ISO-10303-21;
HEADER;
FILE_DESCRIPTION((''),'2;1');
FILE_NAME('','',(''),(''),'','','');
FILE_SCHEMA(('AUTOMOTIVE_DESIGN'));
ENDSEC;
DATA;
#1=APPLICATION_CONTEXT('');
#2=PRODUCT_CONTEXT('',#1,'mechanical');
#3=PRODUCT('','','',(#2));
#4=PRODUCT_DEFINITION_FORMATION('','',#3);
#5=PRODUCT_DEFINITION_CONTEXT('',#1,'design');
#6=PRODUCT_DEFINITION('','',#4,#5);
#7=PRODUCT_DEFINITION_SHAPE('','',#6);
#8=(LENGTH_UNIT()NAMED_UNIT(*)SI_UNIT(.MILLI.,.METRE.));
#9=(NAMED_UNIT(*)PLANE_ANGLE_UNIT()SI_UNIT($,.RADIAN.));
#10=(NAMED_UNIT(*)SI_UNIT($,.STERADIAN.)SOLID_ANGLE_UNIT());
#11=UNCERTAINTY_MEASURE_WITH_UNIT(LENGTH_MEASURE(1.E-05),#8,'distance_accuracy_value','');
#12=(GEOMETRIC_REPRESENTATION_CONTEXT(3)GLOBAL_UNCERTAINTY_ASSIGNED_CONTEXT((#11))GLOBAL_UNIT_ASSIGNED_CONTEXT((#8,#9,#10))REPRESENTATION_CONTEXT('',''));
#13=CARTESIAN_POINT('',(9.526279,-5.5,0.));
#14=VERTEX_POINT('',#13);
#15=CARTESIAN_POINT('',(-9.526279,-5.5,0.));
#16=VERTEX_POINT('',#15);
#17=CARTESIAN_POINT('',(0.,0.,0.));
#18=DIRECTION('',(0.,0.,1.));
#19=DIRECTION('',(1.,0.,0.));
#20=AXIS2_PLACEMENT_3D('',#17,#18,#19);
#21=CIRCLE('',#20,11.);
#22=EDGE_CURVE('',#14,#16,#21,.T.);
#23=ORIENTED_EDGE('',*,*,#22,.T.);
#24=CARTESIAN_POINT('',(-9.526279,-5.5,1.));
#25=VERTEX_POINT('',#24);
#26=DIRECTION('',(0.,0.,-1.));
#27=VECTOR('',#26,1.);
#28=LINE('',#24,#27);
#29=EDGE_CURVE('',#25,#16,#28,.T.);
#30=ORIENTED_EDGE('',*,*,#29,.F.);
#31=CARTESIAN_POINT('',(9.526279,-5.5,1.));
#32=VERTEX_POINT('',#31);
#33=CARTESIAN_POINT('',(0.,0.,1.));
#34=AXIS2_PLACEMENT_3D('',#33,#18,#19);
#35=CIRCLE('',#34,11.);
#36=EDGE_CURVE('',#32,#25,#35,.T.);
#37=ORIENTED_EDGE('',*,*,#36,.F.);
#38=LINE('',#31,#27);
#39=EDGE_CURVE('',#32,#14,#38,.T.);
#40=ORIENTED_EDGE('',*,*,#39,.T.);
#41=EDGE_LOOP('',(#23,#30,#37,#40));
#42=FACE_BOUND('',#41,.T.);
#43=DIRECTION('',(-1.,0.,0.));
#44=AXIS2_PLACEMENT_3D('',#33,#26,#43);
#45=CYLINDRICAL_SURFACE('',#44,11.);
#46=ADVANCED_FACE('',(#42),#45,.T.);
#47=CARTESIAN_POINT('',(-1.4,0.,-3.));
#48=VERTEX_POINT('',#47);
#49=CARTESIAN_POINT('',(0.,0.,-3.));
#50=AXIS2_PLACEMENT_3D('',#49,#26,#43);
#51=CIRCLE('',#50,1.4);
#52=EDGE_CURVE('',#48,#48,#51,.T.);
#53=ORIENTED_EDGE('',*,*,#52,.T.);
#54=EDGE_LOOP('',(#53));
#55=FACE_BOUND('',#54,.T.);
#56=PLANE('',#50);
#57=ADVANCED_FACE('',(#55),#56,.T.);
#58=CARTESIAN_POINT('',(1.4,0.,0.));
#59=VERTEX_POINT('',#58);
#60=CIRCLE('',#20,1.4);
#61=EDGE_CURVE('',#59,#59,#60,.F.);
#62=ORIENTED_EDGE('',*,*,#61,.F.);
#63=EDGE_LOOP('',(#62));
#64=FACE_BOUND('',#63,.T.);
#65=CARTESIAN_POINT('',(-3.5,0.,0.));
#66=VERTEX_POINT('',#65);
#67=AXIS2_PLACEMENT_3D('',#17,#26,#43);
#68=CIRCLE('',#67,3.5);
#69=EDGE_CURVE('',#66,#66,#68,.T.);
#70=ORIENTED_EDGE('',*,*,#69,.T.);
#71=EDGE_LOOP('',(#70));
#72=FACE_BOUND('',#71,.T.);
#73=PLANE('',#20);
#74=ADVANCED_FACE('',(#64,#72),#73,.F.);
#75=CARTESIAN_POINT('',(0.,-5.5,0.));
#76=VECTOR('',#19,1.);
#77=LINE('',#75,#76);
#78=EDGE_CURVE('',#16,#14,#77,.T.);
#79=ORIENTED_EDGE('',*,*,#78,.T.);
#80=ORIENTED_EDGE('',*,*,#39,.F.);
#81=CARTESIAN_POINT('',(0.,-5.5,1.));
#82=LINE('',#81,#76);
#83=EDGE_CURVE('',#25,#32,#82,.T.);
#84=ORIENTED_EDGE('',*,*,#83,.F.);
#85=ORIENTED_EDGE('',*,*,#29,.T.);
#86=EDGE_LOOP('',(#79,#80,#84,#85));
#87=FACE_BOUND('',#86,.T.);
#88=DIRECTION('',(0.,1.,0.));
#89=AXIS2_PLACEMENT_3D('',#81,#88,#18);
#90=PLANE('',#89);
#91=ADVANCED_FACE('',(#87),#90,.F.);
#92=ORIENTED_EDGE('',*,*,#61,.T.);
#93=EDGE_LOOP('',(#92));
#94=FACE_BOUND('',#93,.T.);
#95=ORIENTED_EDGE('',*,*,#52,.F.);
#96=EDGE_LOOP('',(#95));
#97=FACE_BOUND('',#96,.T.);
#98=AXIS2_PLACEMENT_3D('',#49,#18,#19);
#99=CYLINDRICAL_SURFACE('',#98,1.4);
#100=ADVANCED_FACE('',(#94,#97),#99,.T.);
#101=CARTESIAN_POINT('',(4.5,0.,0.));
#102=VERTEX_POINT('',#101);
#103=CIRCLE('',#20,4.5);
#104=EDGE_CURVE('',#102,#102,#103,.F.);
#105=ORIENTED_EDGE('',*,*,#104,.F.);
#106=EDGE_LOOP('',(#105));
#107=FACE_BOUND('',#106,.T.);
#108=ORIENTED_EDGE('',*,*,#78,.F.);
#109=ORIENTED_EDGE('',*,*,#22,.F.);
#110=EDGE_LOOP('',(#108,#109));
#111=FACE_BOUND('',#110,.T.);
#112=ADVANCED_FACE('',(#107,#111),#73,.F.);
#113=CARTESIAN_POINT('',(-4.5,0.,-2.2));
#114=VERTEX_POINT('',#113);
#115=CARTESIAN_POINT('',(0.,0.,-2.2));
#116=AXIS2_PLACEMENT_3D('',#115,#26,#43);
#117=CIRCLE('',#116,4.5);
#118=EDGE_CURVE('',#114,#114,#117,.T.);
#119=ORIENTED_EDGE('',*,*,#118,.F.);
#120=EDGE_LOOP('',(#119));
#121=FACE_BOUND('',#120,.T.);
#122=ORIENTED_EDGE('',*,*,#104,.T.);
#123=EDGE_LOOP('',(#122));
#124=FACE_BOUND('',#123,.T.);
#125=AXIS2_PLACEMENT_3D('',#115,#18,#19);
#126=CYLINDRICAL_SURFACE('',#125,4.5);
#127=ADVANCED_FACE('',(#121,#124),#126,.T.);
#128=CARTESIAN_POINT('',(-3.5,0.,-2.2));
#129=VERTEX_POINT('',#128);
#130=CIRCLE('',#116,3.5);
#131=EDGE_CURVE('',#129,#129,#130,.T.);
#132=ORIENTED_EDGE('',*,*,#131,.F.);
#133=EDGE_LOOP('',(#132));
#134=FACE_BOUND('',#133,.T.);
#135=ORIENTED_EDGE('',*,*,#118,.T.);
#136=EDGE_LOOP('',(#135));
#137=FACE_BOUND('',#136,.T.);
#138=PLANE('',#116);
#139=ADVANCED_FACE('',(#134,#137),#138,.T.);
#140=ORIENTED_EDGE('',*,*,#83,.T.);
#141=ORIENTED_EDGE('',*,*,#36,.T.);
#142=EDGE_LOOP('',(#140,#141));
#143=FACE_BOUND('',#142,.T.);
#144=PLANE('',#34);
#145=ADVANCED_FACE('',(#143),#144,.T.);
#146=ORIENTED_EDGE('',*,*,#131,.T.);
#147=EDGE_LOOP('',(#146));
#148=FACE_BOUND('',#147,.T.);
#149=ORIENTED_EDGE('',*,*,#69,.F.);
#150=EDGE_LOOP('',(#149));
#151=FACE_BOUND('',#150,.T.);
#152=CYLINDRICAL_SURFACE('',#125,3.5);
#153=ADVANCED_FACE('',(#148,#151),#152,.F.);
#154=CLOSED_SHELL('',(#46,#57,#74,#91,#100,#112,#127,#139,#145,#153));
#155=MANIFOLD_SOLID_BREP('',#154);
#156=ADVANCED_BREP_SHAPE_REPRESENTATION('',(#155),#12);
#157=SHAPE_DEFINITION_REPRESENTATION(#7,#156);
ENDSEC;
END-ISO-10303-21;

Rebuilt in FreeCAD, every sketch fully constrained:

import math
import FreeCAD as App
import Part
import Sketcher

doc = App.newDocument("Part")
body = doc.addObject("PartDesign::Body", "Body")

sketch1 = body.newObject("Sketcher::SketchObject", "Sketch")
sketch1.AttachmentSupport = (doc.getObject("XY_Plane"), [""])
sketch1.MapMode = "FlatFace"
sketch1.addGeometry([
    Part.LineSegment(App.Vector(-10, -6, 0), App.Vector(10, -6, 0)),
    Part.ArcOfCircle(Part.Circle(App.Vector(0, 0, 0), App.Vector(0, 0, 1), 11), math.radians(-30), math.radians(210)),
], False)
sketch1.addConstraint([
    Sketcher.Constraint("Coincident", 0, 1, 1, 2),
    Sketcher.Constraint("Coincident", 1, 1, 0, 2),
    Sketcher.Constraint("Horizontal", 0),
    Sketcher.Constraint("Coincident", 1, 3, -1, 1),
    Sketcher.Constraint("Radius", 1, 11.0),
    Sketcher.Constraint("DistanceY", 0, 1, -1, 1, 5.5),
])
pad1 = body.newObject("PartDesign::Pad", "Pad")
pad1.Profile = sketch1
pad1.Length = 1

sketch2 = body.newObject("Sketcher::SketchObject", "Sketch001")
sketch2.AttachmentSupport = (doc.getObject("XY_Plane"), [""])
sketch2.MapMode = "FlatFace"
sketch2.addGeometry([
    Part.Circle(App.Vector(0, 0, 0), App.Vector(0, 0, 1), 4.5),
    Part.Circle(App.Vector(0, 0, 0), App.Vector(0, 0, 1), 3.5),
], False)
sketch2.addConstraint([
    Sketcher.Constraint("Coincident", 0, 3, -1, 1),
    Sketcher.Constraint("Coincident", 1, 3, -1, 1),
    Sketcher.Constraint("Diameter", 0, 9.0),
    Sketcher.Constraint("Diameter", 1, 7.0),
])
pad2 = body.newObject("PartDesign::Pad", "Pad001")
pad2.Profile = sketch2
pad2.Length = 2.2
pad2.Reversed = True

sketch3 = body.newObject("Sketcher::SketchObject", "Sketch002")
sketch3.AttachmentSupport = (doc.getObject("XY_Plane"), [""])
sketch3.MapMode = "FlatFace"
sketch3.addGeometry(Part.Circle(App.Vector(0, 0, 0), App.Vector(0, 0, 1), 1.4), False)
sketch3.addConstraint([
    Sketcher.Constraint("Coincident", 0, 3, -1, 1),
    Sketcher.Constraint("Diameter", 0, 2.8),
])
pad3 = body.newObject("PartDesign::Pad", "Pad002")
pad3.Profile = sketch3
pad3.Length = 3
pad3.Reversed = True

doc.recompute()
